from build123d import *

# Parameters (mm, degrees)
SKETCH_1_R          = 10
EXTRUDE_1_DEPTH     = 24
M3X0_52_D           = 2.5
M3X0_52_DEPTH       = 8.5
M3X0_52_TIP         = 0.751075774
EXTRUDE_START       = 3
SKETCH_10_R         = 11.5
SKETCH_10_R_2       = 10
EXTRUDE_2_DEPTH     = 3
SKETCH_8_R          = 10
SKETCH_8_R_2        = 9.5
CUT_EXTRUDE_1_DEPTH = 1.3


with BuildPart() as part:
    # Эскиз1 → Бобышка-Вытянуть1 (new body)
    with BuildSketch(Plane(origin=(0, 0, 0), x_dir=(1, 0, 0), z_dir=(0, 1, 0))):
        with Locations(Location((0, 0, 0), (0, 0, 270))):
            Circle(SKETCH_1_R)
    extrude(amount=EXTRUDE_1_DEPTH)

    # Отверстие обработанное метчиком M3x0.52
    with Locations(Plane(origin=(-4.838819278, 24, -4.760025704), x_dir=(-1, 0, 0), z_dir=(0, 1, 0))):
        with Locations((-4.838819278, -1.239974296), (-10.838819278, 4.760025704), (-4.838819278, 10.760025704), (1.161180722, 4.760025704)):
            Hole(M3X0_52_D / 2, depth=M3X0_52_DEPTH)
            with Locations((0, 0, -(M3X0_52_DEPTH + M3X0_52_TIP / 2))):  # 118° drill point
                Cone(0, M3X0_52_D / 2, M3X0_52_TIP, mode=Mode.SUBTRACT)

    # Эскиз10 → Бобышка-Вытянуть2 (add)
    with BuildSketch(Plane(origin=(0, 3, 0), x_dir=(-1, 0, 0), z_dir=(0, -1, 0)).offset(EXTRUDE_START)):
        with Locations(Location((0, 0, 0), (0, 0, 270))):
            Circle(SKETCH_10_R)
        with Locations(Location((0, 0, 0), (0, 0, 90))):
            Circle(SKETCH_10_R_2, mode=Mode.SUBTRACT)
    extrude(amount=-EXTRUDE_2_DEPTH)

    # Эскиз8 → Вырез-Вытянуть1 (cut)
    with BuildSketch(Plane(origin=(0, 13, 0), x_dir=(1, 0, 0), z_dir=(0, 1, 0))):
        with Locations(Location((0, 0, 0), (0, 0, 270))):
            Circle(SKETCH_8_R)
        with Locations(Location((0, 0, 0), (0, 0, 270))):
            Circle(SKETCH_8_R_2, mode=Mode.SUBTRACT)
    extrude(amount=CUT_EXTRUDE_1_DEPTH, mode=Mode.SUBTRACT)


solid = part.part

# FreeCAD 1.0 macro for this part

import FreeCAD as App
import Part
import Sketcher

doc = App.newDocument("Part")
body = doc.addObject("PartDesign::Body", "Body")

# Sketch on XZ plane
sketch1 = doc.addObject("Sketcher::SketchObject", "Sketch")
body.addObject(sketch1)
sketch1.AttachmentSupport = (doc.XZ_Plane, [""])
sketch1.MapMode = "FlatFace"
sketch1.addGeometry(Part.Circle(App.Vector(0, 0, 0), App.Vector(0, 0, 1), 10), False)
sketch1.addConstraint([
    Sketcher.Constraint("Coincident", 0, 3, -1, 1),
    Sketcher.Constraint("Diameter", 0, 20.0),
])
pad1 = doc.addObject("PartDesign::Pad", "Pad")
body.addObject(pad1)
pad1.Profile = sketch1
pad1.Length = 24
pad1.Reversed = True

# Sketch on XZ plane
sketch2 = doc.addObject("Sketcher::SketchObject", "Sketch001")
body.addObject(sketch2)
sketch2.AttachmentSupport = (doc.XZ_Plane, [""])
sketch2.MapMode = "FlatFace"
sketch2.AttachmentOffset = App.Placement(App.Vector(0, 0, -24), App.Rotation())
sketch2.addGeometry([
    Part.Circle(App.Vector(0, -6, 0), App.Vector(0, 0, 1), 1.25),
    Part.Circle(App.Vector(6, 0, 0), App.Vector(0, 0, 1), 1.25),
    Part.Circle(App.Vector(0, 6, 0), App.Vector(0, 0, 1), 1.25),
    Part.Circle(App.Vector(-6, 0, 0), App.Vector(0, 0, 1), 1.25),
], False)
sketch2.addConstraint([
    Sketcher.Constraint("Equal", 0, 1),
    Sketcher.Constraint("Equal", 1, 2),
    Sketcher.Constraint("Equal", 2, 3),
    Sketcher.Constraint("Symmetric", 0, 3, 2, 3, -1, 1),
    Sketcher.Constraint("Symmetric", 1, 3, 3, 3, -1, 1),
    Sketcher.Constraint("PointOnObject", 0, 3, -2),
    Sketcher.Constraint("PointOnObject", 1, 3, -1),
    Sketcher.Constraint("Diameter", 0, 2.5),
    Sketcher.Constraint("DistanceY", 0, 3, -1, 1, 6.0),
    Sketcher.Constraint("DistanceX", -1, 1, 1, 3, 6.0),
])
doc.recompute()
hole = doc.addObject("PartDesign::Hole", "Hole")
body.addObject(hole)
hole.Profile = sketch2
hole.ThreadType = "None"
hole.Diameter = 2.5
hole.DepthType = "Dimension"
hole.Depth = 8.5
hole.DrillPoint = "Angled"
hole.DrillPointAngle = 118
hole.Reversed = True

# Sketch on XZ plane
sketch3 = doc.addObject("Sketcher::SketchObject", "Sketch002")
body.addObject(sketch3)
sketch3.AttachmentSupport = (doc.XZ_Plane, [""])
sketch3.MapMode = "FlatFace"
sketch3.addGeometry([
    Part.Circle(App.Vector(0, 0, 0), App.Vector(0, 0, 1), 11.5),
    Part.Circle(App.Vector(0, 0, 0), App.Vector(0, 0, 1), 10),
], False)
sketch3.addConstraint([
    Sketcher.Constraint("Coincident", 0, 3, -1, 1),
    Sketcher.Constraint("Coincident", 1, 3, -1, 1),
    Sketcher.Constraint("Diameter", 0, 23.0),
    Sketcher.Constraint("Diameter", 1, 20.0),
])
pad2 = doc.addObject("PartDesign::Pad", "Pad001")
body.addObject(pad2)
pad2.Profile = sketch3
pad2.Length = 3
pad2.Reversed = True

# Sketch on XZ plane
sketch4 = doc.addObject("Sketcher::SketchObject", "Sketch003")
body.addObject(sketch4)
sketch4.AttachmentSupport = (doc.XZ_Plane, [""])
sketch4.MapMode = "FlatFace"
sketch4.AttachmentOffset = App.Placement(App.Vector(0, 0, -13), App.Rotation())
sketch4.addGeometry([
    Part.Circle(App.Vector(0, 0, 0), App.Vector(0, 0, 1), 10),
    Part.Circle(App.Vector(0, 0, 0), App.Vector(0, 0, 1), 9.5),
], False)
sketch4.addConstraint([
    Sketcher.Constraint("Coincident", 0, 3, -1, 1),
    Sketcher.Constraint("Coincident", 1, 3, -1, 1),
    Sketcher.Constraint("Diameter", 0, 20.0),
    Sketcher.Constraint("Diameter", 1, 19.0),
])
pocket1 = doc.addObject("PartDesign::Pocket", "Pocket")
body.addObject(pocket1)
pocket1.Profile = sketch4
pocket1.Length = 1.3

doc.recompute()
